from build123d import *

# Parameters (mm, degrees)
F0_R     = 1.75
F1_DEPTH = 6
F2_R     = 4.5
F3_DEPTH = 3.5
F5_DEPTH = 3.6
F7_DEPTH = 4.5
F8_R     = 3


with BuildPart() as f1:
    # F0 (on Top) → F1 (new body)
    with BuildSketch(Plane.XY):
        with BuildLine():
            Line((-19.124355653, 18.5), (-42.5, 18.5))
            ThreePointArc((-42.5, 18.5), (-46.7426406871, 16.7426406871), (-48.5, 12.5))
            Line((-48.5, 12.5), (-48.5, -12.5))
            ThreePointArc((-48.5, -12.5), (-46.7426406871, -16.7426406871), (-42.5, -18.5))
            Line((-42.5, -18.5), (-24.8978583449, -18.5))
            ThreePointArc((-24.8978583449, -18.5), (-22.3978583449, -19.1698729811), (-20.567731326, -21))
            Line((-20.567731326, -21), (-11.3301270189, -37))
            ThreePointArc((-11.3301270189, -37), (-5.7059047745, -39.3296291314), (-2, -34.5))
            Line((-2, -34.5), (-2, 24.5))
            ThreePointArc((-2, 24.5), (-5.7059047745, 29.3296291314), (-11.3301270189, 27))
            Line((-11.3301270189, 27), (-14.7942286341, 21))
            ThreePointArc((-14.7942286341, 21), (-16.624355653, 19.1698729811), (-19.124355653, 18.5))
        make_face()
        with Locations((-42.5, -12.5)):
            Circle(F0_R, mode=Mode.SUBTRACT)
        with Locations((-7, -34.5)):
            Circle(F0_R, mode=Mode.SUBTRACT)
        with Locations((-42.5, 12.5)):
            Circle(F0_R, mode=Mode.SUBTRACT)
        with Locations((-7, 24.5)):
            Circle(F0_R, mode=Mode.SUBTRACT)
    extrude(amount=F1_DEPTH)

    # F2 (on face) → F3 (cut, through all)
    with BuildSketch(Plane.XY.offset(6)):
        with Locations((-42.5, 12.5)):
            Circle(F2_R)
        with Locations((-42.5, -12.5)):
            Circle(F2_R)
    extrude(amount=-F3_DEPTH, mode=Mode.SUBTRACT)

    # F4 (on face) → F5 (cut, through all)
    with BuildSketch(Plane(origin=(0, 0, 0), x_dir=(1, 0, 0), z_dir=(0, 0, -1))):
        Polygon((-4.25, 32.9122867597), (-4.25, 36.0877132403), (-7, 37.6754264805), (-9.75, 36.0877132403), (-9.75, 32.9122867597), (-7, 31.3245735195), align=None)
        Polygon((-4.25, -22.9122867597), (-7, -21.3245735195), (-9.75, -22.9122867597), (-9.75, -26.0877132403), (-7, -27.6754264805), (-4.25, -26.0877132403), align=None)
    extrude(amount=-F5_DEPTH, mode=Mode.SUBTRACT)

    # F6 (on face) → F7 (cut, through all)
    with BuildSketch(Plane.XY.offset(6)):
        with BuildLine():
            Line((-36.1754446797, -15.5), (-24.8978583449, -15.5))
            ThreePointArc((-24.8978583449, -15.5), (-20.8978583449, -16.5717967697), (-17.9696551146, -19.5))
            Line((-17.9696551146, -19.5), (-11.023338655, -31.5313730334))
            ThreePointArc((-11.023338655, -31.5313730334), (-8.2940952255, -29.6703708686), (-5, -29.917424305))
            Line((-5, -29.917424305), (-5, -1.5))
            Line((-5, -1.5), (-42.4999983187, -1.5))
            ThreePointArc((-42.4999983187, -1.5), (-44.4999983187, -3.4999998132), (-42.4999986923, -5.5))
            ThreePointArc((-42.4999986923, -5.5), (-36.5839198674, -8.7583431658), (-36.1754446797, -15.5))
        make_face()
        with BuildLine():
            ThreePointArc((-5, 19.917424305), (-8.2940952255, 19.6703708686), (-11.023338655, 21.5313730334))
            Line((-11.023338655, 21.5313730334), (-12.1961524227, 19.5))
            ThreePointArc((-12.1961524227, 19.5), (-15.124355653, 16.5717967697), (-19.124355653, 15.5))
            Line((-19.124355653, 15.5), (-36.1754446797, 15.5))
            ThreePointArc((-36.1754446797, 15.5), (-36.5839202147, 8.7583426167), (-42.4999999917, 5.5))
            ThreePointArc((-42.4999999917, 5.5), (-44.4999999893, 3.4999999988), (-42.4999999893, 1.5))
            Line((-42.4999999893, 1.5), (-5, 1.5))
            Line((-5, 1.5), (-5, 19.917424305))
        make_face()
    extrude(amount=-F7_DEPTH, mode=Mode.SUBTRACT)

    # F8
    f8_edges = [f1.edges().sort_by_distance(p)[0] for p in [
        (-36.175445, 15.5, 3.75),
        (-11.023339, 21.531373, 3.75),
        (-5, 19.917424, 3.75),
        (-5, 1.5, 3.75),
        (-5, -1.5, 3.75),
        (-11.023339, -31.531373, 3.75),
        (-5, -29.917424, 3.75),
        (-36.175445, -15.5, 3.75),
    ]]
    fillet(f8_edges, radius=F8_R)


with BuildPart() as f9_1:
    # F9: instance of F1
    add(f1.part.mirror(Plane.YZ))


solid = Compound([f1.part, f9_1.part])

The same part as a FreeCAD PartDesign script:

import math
import FreeCAD as App
import Part
import Sketcher
from FreeCAD import Vector
Q = App.Units.Quantity


def edges_at(feature, points):
    """Names of the edges that pass closest to the given points."""
    edges = feature.Shape.Edges
    near = lambda p: min(range(len(edges)), key=lambda i: edges[i].distToShape(Part.Vertex(*p))[0])
    return sorted({f"Edge{near(p) + 1}" for p in points})


def add_polygon(sketch, points):
    """Adds a closed chain of lines whose ends are joined by coincident constraints."""
    first, n = sketch.GeometryCount, len(points)
    for a, b in zip(points, points[1:] + points[:1]):
        sketch.addGeometry(Part.LineSegment(App.Vector(*a, 0), App.Vector(*b, 0)), False)
    for i in range(n):
        sketch.addConstraint(Sketcher.Constraint("Coincident", first + i, 2, first + (i + 1) % n, 1))

doc = App.newDocument("Part")
body = doc.addObject("PartDesign::Body", "Body")

# Sketch on XY plane
sketch1 = body.newObject("Sketcher::SketchObject", "Sketch")
sketch1.AttachmentSupport = (doc.getObject("XY_Plane"), [""])
sketch1.MapMode = "FlatFace"
sketch1.addGeometry(Part.LineSegment(Vector(-19.1, 18.5, 0), Vector(-42.5, 18.5, 0)), False)
sketch1.addGeometry(Part.ArcOfCircle(Part.Circle(Vector(-42.5, 12.5, 0), Vector(0, 0, 1), 6), math.radians(90), math.radians(180)), False)
sketch1.addGeometry(Part.LineSegment(Vector(-48.5, 12.5, 0), Vector(-48.5, -12.5, 0)), False)
sketch1.addGeometry(Part.ArcOfCircle(Part.Circle(Vector(-42.5, -12.5, 0), Vector(0, 0, 1), 6), math.radians(180), math.radians(270)), False)
sketch1.addGeometry(Part.LineSegment(Vector(-42.5, -18.5, 0), Vector(-24.9, -18.5, 0)), False)
sketch1.addGeometry(Part.ArcOfCircle(Part.Circle(Vector(-24.9, -23.5, 0), Vector(0, 0, 1), 5), math.radians(30), math.radians(90)), False)
sketch1.addGeometry(Part.LineSegment(Vector(-20.6, -21, 0), Vector(-11.3, -37, 0)), False)
sketch1.addGeometry(Part.ArcOfCircle(Part.Circle(Vector(-7, -34.5, 0), Vector(0, 0, 1), 5), math.radians(-150), math.radians(0)), False)
sketch1.addGeometry(Part.LineSegment(Vector(-2, -34.5, 0), Vector(-2, 24.5, 0)), False)
sketch1.addGeometry(Part.ArcOfCircle(Part.Circle(Vector(-7, 24.5, 0), Vector(0, 0, 1), 5), math.radians(0), math.radians(150)), False)
sketch1.addGeometry(Part.LineSegment(Vector(-11.3, 27, 0), Vector(-14.8, 21, 0)), False)
sketch1.addGeometry(Part.ArcOfCircle(Part.Circle(Vector(-19.1, 23.5, 0), Vector(0, 0, 1), 5), math.radians(-90), math.radians(-30)), False)
sketch1.addGeometry(Part.Circle(Vector(-42.5, -12.5, 0), Vector(0, 0, 1), 1.8), False)
sketch1.addGeometry(Part.Circle(Vector(-7, -34.5, 0), Vector(0, 0, 1), 1.8), False)
sketch1.addGeometry(Part.Circle(Vector(-42.5, 12.5, 0), Vector(0, 0, 1), 1.8), False)
sketch1.addGeometry(Part.Circle(Vector(-7, 24.5, 0), Vector(0, 0, 1), 1.8), False)
sketch1.addConstraint(Sketcher.Constraint("Tangent", 0, 2, 1, 1))
sketch1.addConstraint(Sketcher.Constraint("Tangent", 1, 2, 2, 1))
sketch1.addConstraint(Sketcher.Constraint("Tangent", 2, 2, 3, 1))
sketch1.addConstraint(Sketcher.Constraint("Tangent", 3, 2, 4, 1))
sketch1.addConstraint(Sketcher.Constraint("Tangent", 4, 2, 5, 2))
sketch1.addConstraint(Sketcher.Constraint("Tangent", 5, 1, 6, 1))
sketch1.addConstraint(Sketcher.Constraint("Tangent", 6, 2, 7, 1))
sketch1.addConstraint(Sketcher.Constraint("Tangent", 7, 2, 8, 1))
sketch1.addConstraint(Sketcher.Constraint("Tangent", 8, 2, 9, 1))
sketch1.addConstraint(Sketcher.Constraint("Tangent", 9, 2, 10, 1))
sketch1.addConstraint(Sketcher.Constraint("Tangent", 10, 2, 11, 2))
sketch1.addConstraint(Sketcher.Constraint("Tangent", 11, 1, 0, 1))
sketch1.addConstraint(Sketcher.Constraint("Horizontal", 0))
sketch1.addConstraint(Sketcher.Constraint("Vertical", 2))
sketch1.addConstraint(Sketcher.Constraint("Horizontal", 4))
sketch1.addConstraint(Sketcher.Constraint("Vertical", 8))
sketch1.addConstraint(Sketcher.Constraint("Coincident", 12, 3, 3, 3))
sketch1.addConstraint(Sketcher.Constraint("Coincident", 13, 3, 7, 3))
sketch1.addConstraint(Sketcher.Constraint("Coincident", 14, 3, 1, 3))
sketch1.addConstraint(Sketcher.Constraint("Coincident", 15, 3, 9, 3))
sketch1.addConstraint(Sketcher.Constraint("Equal", 1, 3))
sketch1.addConstraint(Sketcher.Constraint("Equal", 5, 7))
sketch1.addConstraint(Sketcher.Constraint("Equal", 7, 9))
sketch1.addConstraint(Sketcher.Constraint("Equal", 9, 11))
sketch1.addConstraint(Sketcher.Constraint("Equal", 12, 13))
sketch1.addConstraint(Sketcher.Constraint("Equal", 13, 14))
sketch1.addConstraint(Sketcher.Constraint("Equal", 14, 15))
sketch1.addConstraint(Sketcher.Constraint("Vertical", 6, 2, 9, 2))
sketch1.addConstraint(Sketcher.Constraint("Radius", 1, 6.0))
sketch1.addConstraint(Sketcher.Constraint("Radius", 5, 5.0))
sketch1.addConstraint(Sketcher.Constraint("Diameter", 12, 3.5))
sketch1.addConstraint(Sketcher.Constraint("DistanceY", 2, 2, 2, 1, 25.0))
sketch1.addConstraint(Sketcher.Constraint("DistanceY", 8, 1, 8, 2, 59.0))
sketch1.addConstraint(Sketcher.Constraint("Angle", 6, Q("-60 deg")))
sketch1.addConstraint(Sketcher.Constraint("DistanceX", 7, 3, -1, 1, 7.0))
sketch1.addConstraint(Sketcher.Constraint("DistanceY", 5, 1, -1, 1, 21.0))
sketch1.addConstraint(Sketcher.Constraint("DistanceY", 6, 2, -1, 1, 37.0))
sketch1.addConstraint(Sketcher.Constraint("DistanceX", 1, 3, -1, 1, 42.5))
pad1 = body.newObject("PartDesign::Pad", "Pad")
pad1.Profile = sketch1
pad1.Length = 6

# Sketch on XY plane
sketch2 = body.newObject("Sketcher::SketchObject", "Sketch001")
sketch2.AttachmentSupport = (doc.getObject("XY_Plane"), [""])
sketch2.MapMode = "FlatFace"
sketch2.AttachmentOffset = App.Placement(Vector(0, 0, 6), App.Rotation())
sketch2.addGeometry(Part.Circle(Vector(-42.5, 12.5, 0), Vector(0, 0, 1), 4.5), False)
sketch2.addGeometry(Part.Circle(Vector(-42.5, -12.5, 0), Vector(0, 0, 1), 4.5), False)
sketch2.addConstraint(Sketcher.Constraint("Equal", 0, 1))
sketch2.addConstraint(Sketcher.Constraint("Symmetric", 0, 3, 1, 3, -1))
sketch2.addConstraint(Sketcher.Constraint("Diameter", 0, 9.0))
sketch2.addConstraint(Sketcher.Constraint("DistanceY", 1, 3, 0, 3, 25.0))
sketch2.addConstraint(Sketcher.Constraint("DistanceX", 0, 3, -1, 1, 42.5))
pocket1 = body.newObject("PartDesign::Pocket", "Pocket")
pocket1.Profile = sketch2
pocket1.Length = 3.5

# Sketch on XY plane
sketch3 = body.newObject("Sketcher::SketchObject", "Sketch002")
sketch3.AttachmentSupport = (doc.getObject("XY_Plane"), [""])
sketch3.MapMode = "FlatFace"
add_polygon(sketch3, [(-4.2, -32.9), (-4.2, -36.1), (-7, -37.7), (-9.8, -36.1), (-9.8, -32.9), (-7, -31.3)])  # lines 0-5
add_polygon(sketch3, [(-4.2, 22.9), (-7, 21.3), (-9.8, 22.9), (-9.8, 26.1), (-7, 27.7), (-4.2, 26.1)])  # lines 6-11
sketch3.addConstraint(Sketcher.Constraint("Vertical", 0))
sketch3.addConstraint(Sketcher.Constraint("Vertical", 3))
sketch3.addConstraint(Sketcher.Constraint("Vertical", 8))
sketch3.addConstraint(Sketcher.Constraint("Vertical", 11))
sketch3.addConstraint(Sketcher.Constraint("Parallel", 1, 4))
sketch3.addConstraint(Sketcher.Constraint("Parallel", 2, 5))
sketch3.addConstraint(Sketcher.Constraint("Parallel", 4, 6))
sketch3.addConstraint(Sketcher.Constraint("Parallel", 5, 7))
sketch3.addConstraint(Sketcher.Constraint("Parallel", 6, 9))
sketch3.addConstraint(Sketcher.Constraint("Parallel", 7, 10))
sketch3.addConstraint(Sketcher.Constraint("Horizontal", 0, 2, 2, 2))
sketch3.addConstraint(Sketcher.Constraint("Horizontal", 3, 2, 5, 2))
sketch3.addConstraint(Sketcher.Constraint("Horizontal", 8, 2, 10, 2))
sketch3.addConstraint(Sketcher.Constraint("Horizontal", 7, 2, 11, 2))
sketch3.addConstraint(Sketcher.Constraint("Vertical", 1, 2, 4, 2))
sketch3.addConstraint(Sketcher.Constraint("Vertical", 4, 2, 6, 2))
sketch3.addConstraint(Sketcher.Constraint("Vertical", 3, 2, 7, 2))
sketch3.addConstraint(Sketcher.Constraint("Equal", 3, 8))
sketch3.addConstraint(Sketcher.Constraint("Angle", 1, Q("-150 deg")))
sketch3.addConstraint(Sketcher.Constraint("DistanceX", 1, 2, -1, 1, 7.0))
sketch3.addConstraint(Sketcher.Constraint("DistanceY", 2, 2, 7, 2, 59.0))
sketch3.addConstraint(Sketcher.Constraint("DistanceX", 2, 2, 0, 2, 5.5))
sketch3.addConstraint(Sketcher.Constraint("DistanceY", 0, 2, 0, 1, 3.175426))
sketch3.addConstraint(Sketcher.Constraint("DistanceY", 0, 2, -1, 1, 36.087713))
pocket2 = body.newObject("PartDesign::Pocket", "Pocket001")
pocket2.Profile = sketch3
pocket2.Length = 3.6
pocket2.Reversed = True

# Sketch on XY plane
sketch4 = body.newObject("Sketcher::SketchObject", "Sketch003")
sketch4.AttachmentSupport = (doc.getObject("XY_Plane"), [""])
sketch4.MapMode = "FlatFace"
sketch4.AttachmentOffset = App.Placement(Vector(0, 0, 6), App.Rotation())
sketch4.addGeometry(Part.LineSegment(Vector(-36.2, -15.5, 0), Vector(-24.9, -15.5, 0)), False)
sketch4.addGeometry(Part.ArcOfCircle(Part.Circle(Vector(-24.9, -23.5, 0), Vector(0, 0, 1), 8), math.radians(30), math.radians(90)), False)
sketch4.addGeometry(Part.LineSegment(Vector(-18, -19.5, 0), Vector(-11, -31.5, 0)), False)
sketch4.addGeometry(Part.ArcOfCircle(Part.Circle(Vector(-7, -34.5, 0), Vector(0, 0, 1), 5), math.radians(66), math.radians(144)), False)
sketch4.addGeometry(Part.LineSegment(Vector(-5, -29.9, 0), Vector(-5, -1.5, 0)), False)
sketch4.addGeometry(Part.LineSegment(Vector(-5, -1.5, 0), Vector(-42.5, -1.5, 0)), False)
sketch4.addGeometry(Part.ArcOfCircle(Part.Circle(Vector(-42.5, -3.5, 0), Vector(0, 0, 1), 2), math.radians(90), math.radians(270)), False)
sketch4.addGeometry(Part.ArcOfCircle(Part.Circle(Vector(-42.5, -12.5, 0), Vector(0, 0, 1), 7), math.radians(-25), math.radians(90)), False)
sketch4.addGeometry(Part.ArcOfCircle(Part.Circle(Vector(-7, 24.5, 0), Vector(0, 0, 1), 5), math.radians(-144), math.radians(-66)), False)
sketch4.addGeometry(Part.LineSegment(Vector(-11, 21.5, 0), Vector(-12.2, 19.5, 0)), False)
sketch4.addGeometry(Part.ArcOfCircle(Part.Circle(Vector(-19.1, 23.5, 0), Vector(0, 0, 1), 8), math.radians(-90), math.radians(-30)), False)
sketch4.addGeometry(Part.LineSegment(Vector(-19.1, 15.5, 0), Vector(-36.2, 15.5, 0)), False)
sketch4.addGeometry(Part.ArcOfCircle(Part.Circle(Vector(-42.5, 12.5, 0), Vector(0, 0, 1), 7), math.radians(-90), math.radians(25)), False)
sketch4.addGeometry(Part.ArcOfCircle(Part.Circle(Vector(-42.5, 3.5, 0), Vector(0, 0, 1), 2), math.radians(90), math.radians(270)), False)
sketch4.addGeometry(Part.LineSegment(Vector(-42.5, 1.5, 0), Vector(-5, 1.5, 0)), False)
sketch4.addGeometry(Part.LineSegment(Vector(-5, 1.5, 0), Vector(-5, 19.9, 0)), False)
sketch4.addConstraint(Sketcher.Constraint("Tangent", 0, 2, 1, 2))
sketch4.addConstraint(Sketcher.Constraint("Tangent", 1, 1, 2, 1))
sketch4.addConstraint(Sketcher.Constraint("Coincident", 2, 2, 3, 2))
sketch4.addConstraint(Sketcher.Constraint("Coincident", 3, 1, 4, 1))
sketch4.addConstraint(Sketcher.Constraint("Coincident", 4, 2, 5, 1))
sketch4.addConstraint(Sketcher.Constraint("Tangent", 5, 2, 6, 1))
sketch4.addConstraint(Sketcher.Constraint("Tangent", 6, 2, 7, 2))
sketch4.addConstraint(Sketcher.Constraint("Coincident", 7, 1, 0, 1))
sketch4.addConstraint(Sketcher.Constraint("Coincident", 8, 1, 9, 1))
sketch4.addConstraint(Sketcher.Constraint("Tangent", 9, 2, 10, 2))
sketch4.addConstraint(Sketcher.Constraint("Tangent", 10, 1, 11, 1))
sketch4.addConstraint(Sketcher.Constraint("Coincident", 11, 2, 12, 2))
sketch4.addConstraint(Sketcher.Constraint("Tangent", 12, 1, 13, 1))
sketch4.addConstraint(Sketcher.Constraint("Tangent", 13, 2, 14, 1))
sketch4.addConstraint(Sketcher.Constraint("Coincident", 14, 2, 15, 1))
sketch4.addConstraint(Sketcher.Constraint("Coincident", 15, 2, 8, 2))
sketch4.addConstraint(Sketcher.Constraint("Horizontal", 0))
sketch4.addConstraint(Sketcher.Constraint("Vertical", 4))
sketch4.addConstraint(Sketcher.Constraint("Horizontal", 5))
sketch4.addConstraint(Sketcher.Constraint("Horizontal", 11))
sketch4.addConstraint(Sketcher.Constraint("Horizontal", 14))
sketch4.addConstraint(Sketcher.Constraint("Vertical", 15))
sketch4.addConstraint(Sketcher.Constraint("Equal", 3, 8))
sketch4.addConstraint(Sketcher.Constraint("Equal", 1, 10))
sketch4.addConstraint(Sketcher.Constraint("Equal", 7, 12))
sketch4.addConstraint(Sketcher.Constraint("Equal", 6, 13))
sketch4.addConstraint(Sketcher.Constraint("Symmetric", 7, 3, 12, 3, -1))
sketch4.addConstraint(Sketcher.Constraint("Vertical", 6, 3, 7, 3))
sketch4.addConstraint(Sketcher.Constraint("Vertical", 3, 3, 8, 3))
sketch4.addConstraint(Sketcher.Constraint("Vertical", 12, 3, 13, 3))
sketch4.addConstraint(Sketcher.Constraint("Vertical", 2, 2, 8, 1))
sketch4.addConstraint(Sketcher.Constraint("Vertical", 7, 1, 11, 2))
sketch4.addConstraint(Sketcher.Constraint("Vertical", 4, 2, 14, 2))
sketch4.addConstraint(Sketcher.Constraint("Radius", 1, 8.0))
sketch4.addConstraint(Sketcher.Constraint("Radius", 3, 5.0))
sketch4.addConstraint(Sketcher.Constraint("Radius", 6, 2.0))
sketch4.addConstraint(Sketcher.Constraint("Radius", 7, 7.0))
sketch4.addConstraint(Sketcher.Constraint("Angle", 2, Q("-60 deg")))
sketch4.addConstraint(Sketcher.Constraint("Angle", 9, Q("-120 deg")))
sketch4.addConstraint(Sketcher.Constraint("DistanceX", 5, 2, 5, 1, 37.499998))
sketch4.addConstraint(Sketcher.Constraint("DistanceX", 3, 3, -1, 1, 7.0))
sketch4.addConstraint(Sketcher.Constraint("DistanceX", 3, 1, -1, 1, 5.0))
sketch4.addConstraint(Sketcher.Constraint("DistanceY", 3, 3, 1, 3, 11.0))
sketch4.addConstraint(Sketcher.Constraint("DistanceY", 1, 3, 6, 3, 20.0))
sketch4.addConstraint(Sketcher.Constraint("DistanceY", 6, 3, 8, 3, 28.0))
sketch4.addConstraint(Sketcher.Constraint("DistanceY", 10, 3, 8, 3, 1.0))
sketch4.addConstraint(Sketcher.Constraint("DistanceX", 11, 2, 11, 1, 17.051089))
pocket3 = body.newObject("PartDesign::Pocket", "Pocket002")
pocket3.Profile = sketch4
pocket3.Length = 4.5
doc.recompute()

fillet = body.newObject("PartDesign::Fillet", "Fillet")
fillet.Base = (pocket3, edges_at(pocket3, [
    (-36.175, 15.5, 3.75),
    (-11.023, 21.531, 3.75),
    (-5, 19.917, 3.75),
    (-5, 1.5, 3.75),
    (-5, -1.5, 3.75),
    (-11.023, -31.531, 3.75),
    (-5, -29.917, 3.75),
    (-36.175, -15.5, 3.75),
]))
fillet.Radius = 3
body2 = doc.addObject("PartDesign::Body", "Body001")
doc.recompute()

mirroring = doc.addObject("Part::Mirroring", "Mirroring")
mirroring.Source = body
mirroring.Base = Vector(0, 0, 0)
mirroring.Normal = Vector(1, 0, 0)
body2.BaseFeature = mirroring
doc.recompute()
mirroring.Visibility = False

doc.recompute()
